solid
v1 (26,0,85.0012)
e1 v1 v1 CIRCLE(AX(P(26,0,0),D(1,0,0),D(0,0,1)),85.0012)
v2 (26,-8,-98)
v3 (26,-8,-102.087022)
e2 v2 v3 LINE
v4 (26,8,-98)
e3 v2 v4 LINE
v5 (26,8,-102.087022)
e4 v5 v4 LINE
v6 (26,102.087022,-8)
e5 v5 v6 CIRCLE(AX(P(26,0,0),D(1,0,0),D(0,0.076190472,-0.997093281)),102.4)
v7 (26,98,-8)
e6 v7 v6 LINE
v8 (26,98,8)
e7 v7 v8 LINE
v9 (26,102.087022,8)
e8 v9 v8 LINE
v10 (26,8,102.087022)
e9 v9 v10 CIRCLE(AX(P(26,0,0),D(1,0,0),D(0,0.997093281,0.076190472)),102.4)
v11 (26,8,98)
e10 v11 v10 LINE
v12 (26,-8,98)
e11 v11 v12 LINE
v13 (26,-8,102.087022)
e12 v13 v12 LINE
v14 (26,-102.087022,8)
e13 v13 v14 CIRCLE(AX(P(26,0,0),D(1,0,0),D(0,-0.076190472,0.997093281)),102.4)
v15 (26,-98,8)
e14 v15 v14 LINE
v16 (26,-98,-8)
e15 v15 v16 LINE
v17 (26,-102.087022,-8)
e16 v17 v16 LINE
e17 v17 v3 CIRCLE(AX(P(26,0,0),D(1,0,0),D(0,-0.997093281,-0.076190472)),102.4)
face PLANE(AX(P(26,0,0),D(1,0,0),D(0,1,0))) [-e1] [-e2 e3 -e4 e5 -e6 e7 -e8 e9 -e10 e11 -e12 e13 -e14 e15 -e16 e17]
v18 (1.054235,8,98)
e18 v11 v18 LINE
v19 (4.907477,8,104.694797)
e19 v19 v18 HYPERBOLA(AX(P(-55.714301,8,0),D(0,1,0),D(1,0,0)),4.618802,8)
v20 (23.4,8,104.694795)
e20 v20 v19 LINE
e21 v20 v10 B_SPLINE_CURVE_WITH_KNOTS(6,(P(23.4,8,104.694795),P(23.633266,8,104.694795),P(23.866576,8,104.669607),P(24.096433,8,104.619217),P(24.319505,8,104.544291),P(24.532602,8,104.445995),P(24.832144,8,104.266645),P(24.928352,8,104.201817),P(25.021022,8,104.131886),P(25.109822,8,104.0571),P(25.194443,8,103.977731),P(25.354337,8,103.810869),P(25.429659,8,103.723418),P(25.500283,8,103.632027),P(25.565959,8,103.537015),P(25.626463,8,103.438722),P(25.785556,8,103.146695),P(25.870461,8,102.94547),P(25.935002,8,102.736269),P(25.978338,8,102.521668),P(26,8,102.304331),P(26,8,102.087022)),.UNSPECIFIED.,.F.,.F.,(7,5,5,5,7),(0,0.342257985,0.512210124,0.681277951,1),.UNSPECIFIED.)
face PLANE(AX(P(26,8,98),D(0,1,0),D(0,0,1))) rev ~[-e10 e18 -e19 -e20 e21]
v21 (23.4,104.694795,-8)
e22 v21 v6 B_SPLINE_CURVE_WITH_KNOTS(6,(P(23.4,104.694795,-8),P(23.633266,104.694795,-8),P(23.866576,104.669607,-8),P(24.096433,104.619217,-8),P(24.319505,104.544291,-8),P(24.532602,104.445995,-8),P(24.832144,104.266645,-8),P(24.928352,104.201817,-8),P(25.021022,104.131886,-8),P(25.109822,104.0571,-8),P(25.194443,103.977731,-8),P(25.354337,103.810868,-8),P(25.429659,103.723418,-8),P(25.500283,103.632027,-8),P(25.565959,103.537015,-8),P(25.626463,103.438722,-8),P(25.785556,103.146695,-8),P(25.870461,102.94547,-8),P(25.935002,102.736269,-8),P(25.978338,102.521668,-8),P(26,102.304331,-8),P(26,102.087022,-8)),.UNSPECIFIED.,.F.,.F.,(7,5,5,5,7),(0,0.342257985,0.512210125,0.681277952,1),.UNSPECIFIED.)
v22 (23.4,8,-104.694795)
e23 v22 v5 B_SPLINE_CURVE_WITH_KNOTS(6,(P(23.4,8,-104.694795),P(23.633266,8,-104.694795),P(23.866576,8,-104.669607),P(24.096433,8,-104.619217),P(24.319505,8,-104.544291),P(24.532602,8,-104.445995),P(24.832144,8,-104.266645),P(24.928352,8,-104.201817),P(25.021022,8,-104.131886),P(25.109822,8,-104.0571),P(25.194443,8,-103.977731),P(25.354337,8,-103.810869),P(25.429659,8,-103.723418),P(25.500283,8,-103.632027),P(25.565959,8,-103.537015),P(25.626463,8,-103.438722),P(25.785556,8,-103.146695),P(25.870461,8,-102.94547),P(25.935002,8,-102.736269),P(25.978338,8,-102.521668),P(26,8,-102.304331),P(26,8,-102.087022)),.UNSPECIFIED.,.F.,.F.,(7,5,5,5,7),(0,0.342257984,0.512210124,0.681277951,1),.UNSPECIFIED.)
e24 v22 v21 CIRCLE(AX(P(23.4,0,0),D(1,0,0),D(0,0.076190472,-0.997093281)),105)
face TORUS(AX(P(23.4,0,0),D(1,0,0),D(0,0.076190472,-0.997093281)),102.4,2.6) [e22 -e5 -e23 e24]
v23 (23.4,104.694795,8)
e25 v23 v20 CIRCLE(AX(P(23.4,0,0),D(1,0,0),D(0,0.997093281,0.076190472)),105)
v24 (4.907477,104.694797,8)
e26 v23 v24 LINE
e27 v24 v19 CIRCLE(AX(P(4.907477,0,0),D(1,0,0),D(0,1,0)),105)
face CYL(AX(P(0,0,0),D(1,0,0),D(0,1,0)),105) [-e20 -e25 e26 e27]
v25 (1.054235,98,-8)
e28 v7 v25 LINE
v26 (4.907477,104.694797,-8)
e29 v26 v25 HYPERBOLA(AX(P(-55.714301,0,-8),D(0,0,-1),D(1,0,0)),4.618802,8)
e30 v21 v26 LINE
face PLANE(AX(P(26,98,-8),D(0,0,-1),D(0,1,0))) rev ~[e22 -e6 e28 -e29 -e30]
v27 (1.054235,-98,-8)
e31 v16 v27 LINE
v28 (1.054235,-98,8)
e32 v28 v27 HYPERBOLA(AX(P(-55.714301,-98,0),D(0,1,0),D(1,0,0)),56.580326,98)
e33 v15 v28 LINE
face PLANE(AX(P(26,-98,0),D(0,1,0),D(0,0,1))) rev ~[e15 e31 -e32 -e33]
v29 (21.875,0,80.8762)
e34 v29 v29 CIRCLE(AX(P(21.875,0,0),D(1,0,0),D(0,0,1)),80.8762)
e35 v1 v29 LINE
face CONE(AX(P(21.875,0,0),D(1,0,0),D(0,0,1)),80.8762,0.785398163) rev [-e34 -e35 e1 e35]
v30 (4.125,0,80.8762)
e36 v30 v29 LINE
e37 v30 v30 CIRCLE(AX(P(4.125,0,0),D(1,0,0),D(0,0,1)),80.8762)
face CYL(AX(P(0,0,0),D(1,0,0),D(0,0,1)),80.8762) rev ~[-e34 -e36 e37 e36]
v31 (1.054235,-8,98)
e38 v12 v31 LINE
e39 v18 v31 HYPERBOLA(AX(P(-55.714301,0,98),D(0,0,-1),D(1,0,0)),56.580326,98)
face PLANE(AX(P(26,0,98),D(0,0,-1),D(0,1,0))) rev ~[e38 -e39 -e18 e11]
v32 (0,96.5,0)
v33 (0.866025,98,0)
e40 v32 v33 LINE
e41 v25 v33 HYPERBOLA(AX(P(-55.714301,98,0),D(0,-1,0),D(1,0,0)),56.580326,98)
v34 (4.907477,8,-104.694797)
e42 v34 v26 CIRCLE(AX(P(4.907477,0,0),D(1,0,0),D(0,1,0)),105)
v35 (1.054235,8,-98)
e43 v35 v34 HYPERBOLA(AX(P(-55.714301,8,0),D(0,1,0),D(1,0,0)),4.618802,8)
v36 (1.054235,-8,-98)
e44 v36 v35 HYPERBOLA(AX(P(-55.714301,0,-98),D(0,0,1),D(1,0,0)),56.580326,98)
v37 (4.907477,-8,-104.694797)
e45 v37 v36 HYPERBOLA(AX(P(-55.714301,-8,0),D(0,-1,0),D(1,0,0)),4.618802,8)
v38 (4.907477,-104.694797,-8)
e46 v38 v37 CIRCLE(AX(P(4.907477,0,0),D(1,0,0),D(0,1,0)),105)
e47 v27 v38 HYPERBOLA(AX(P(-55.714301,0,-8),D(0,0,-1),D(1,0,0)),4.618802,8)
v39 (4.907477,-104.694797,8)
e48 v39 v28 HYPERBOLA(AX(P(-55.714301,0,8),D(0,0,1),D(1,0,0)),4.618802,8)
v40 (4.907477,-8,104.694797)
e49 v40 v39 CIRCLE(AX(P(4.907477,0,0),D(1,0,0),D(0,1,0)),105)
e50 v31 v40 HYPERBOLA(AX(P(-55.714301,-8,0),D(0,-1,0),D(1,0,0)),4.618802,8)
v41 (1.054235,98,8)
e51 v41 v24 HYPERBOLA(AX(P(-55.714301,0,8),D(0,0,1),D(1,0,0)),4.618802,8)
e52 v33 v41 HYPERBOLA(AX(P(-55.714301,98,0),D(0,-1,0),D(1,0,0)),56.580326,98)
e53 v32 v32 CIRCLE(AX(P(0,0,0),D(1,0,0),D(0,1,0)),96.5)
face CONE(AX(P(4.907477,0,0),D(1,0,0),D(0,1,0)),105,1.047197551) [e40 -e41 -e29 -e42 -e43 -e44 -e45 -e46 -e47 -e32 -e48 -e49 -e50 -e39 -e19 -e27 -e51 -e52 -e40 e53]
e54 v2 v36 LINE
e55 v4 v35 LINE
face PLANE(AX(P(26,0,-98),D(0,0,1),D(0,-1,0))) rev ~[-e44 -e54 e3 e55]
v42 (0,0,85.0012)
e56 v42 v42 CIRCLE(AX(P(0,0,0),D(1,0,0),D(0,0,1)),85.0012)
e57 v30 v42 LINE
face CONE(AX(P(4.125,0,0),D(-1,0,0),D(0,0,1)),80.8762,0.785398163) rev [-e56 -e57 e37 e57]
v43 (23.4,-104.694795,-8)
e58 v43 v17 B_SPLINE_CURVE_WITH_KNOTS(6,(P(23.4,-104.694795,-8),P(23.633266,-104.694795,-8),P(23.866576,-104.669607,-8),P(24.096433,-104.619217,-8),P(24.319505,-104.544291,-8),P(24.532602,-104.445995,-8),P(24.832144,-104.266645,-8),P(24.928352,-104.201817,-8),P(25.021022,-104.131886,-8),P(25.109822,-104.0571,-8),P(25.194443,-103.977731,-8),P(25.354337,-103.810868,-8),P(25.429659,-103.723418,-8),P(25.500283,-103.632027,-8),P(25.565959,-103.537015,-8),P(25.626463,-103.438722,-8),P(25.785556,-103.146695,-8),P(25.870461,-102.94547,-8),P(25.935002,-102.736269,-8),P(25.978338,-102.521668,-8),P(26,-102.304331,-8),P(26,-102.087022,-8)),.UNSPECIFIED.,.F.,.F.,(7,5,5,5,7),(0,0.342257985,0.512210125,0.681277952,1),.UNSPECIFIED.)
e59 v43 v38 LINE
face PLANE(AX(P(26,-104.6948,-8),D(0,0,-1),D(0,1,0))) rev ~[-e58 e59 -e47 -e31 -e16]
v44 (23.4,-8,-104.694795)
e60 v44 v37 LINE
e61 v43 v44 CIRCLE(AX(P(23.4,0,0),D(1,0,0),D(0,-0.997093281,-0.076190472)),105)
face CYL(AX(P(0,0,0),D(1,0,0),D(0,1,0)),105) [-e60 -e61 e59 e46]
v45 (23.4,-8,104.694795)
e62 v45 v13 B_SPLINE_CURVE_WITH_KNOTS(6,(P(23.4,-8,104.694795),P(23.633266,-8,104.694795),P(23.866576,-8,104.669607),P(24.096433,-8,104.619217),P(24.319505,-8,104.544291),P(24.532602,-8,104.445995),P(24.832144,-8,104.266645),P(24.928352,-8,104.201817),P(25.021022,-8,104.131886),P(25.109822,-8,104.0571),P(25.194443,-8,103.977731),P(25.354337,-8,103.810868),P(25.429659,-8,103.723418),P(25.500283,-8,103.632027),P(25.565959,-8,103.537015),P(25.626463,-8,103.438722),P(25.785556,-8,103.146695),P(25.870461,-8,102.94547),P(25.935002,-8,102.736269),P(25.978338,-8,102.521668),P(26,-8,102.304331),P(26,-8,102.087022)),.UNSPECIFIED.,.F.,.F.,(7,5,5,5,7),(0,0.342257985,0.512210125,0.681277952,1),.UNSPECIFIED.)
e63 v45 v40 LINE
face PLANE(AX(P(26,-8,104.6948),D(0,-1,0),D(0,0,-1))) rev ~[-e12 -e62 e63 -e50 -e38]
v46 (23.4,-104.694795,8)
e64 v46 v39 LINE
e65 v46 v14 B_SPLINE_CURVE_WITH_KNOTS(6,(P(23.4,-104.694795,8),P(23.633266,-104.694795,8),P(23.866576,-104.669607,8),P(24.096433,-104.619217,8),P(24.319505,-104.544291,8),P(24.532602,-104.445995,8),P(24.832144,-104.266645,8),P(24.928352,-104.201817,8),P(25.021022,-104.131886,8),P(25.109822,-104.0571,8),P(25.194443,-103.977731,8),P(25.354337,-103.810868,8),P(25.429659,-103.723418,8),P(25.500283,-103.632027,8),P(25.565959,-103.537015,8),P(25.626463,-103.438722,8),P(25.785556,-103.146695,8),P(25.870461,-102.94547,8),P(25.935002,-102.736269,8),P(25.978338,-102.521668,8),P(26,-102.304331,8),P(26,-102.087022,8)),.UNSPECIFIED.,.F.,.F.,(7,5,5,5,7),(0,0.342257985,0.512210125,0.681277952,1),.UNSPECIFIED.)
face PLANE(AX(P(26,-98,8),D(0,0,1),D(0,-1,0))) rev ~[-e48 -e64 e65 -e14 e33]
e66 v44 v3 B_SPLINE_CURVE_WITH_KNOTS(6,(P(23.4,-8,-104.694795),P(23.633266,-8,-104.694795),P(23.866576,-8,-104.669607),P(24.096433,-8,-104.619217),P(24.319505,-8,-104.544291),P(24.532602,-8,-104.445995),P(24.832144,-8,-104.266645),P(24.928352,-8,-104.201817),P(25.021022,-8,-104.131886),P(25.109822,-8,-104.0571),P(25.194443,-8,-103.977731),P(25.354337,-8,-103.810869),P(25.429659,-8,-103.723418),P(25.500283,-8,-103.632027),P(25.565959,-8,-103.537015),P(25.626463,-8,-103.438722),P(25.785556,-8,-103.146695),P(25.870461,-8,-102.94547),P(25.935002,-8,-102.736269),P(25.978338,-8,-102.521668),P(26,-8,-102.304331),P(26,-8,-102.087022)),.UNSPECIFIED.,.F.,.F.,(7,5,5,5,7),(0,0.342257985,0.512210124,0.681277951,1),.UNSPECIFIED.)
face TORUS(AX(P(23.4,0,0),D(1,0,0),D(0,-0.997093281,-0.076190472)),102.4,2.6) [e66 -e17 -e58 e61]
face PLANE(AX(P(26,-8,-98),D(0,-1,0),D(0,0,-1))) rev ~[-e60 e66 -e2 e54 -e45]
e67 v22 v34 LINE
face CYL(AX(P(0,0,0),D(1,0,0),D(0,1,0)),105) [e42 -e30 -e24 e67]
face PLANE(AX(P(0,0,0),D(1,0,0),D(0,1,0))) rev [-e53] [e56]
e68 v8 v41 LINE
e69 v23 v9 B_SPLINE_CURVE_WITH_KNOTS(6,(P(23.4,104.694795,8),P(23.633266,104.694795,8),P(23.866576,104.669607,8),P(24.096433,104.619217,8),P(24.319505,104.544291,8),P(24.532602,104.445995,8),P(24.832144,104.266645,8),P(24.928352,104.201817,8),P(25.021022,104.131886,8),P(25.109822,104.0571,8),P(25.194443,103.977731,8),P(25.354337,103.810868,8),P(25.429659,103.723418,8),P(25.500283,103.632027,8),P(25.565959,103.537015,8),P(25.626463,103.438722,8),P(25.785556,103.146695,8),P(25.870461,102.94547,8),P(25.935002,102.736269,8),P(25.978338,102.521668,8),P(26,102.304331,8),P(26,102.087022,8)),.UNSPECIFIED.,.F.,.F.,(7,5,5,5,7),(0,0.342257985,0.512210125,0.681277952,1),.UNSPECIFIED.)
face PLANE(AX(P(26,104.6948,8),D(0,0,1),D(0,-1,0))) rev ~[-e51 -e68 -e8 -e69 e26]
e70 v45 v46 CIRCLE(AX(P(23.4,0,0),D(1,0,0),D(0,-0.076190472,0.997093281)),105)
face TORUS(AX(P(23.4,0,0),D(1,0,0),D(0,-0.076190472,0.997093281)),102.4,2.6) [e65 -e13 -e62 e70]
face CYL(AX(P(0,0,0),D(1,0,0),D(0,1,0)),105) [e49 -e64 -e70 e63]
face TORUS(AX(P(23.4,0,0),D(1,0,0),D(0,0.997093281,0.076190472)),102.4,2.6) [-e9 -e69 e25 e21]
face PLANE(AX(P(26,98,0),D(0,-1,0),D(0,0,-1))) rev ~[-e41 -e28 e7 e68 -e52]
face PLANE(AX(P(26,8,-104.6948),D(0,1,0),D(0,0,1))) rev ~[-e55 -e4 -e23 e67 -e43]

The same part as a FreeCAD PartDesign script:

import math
import FreeCAD as App
import Part
import Sketcher

V = App.Vector
Q = App.Units.Quantity


def edges_at(feature, points):
    """Names of the edges that pass closest to the given points."""
    edges = feature.Shape.Edges
    near = lambda p: min(range(len(edges)), key=lambda i: edges[i].distToShape(Part.Vertex(*p))[0])
    return sorted({f"Edge{near(p) + 1}" for p in points})

doc = App.newDocument("Part")
body = doc.addObject("PartDesign::Body", "Body")

sketch1 = doc.addObject("Sketcher::SketchObject", "Sketch")
body.addObject(sketch1)
sketch1.AttachmentSupport = (doc.XY_Plane, [""])
sketch1.MapMode = "FlatFace"
sketch1.addGeometry([
    Part.LineSegment(V(0, 105, 0), V(0, 0, 0)),
    Part.LineSegment(V(0, 0, 0), V(26, 0, 0)),
    Part.LineSegment(V(26, 0, 0), V(26, 105, 0)),
    Part.LineSegment(V(26, 105, 0), V(0, 105, 0)),
], False)
sketch1.addConstraint([
    Sketcher.Constraint("Coincident", 0, 2, 1, 1),
    Sketcher.Constraint("Coincident", 1, 2, 2, 1),
    Sketcher.Constraint("Coincident", 2, 2, 3, 1),
    Sketcher.Constraint("Coincident", 3, 2, 0, 1),
    Sketcher.Constraint("Vertical", 0),
    Sketcher.Constraint("Horizontal", 1),
    Sketcher.Constraint("Vertical", 2),
    Sketcher.Constraint("Horizontal", 3),
    Sketcher.Constraint("Coincident", 0, 2, -1, 1),
    Sketcher.Constraint("DistanceX", 1, 1, 1, 2, Q("26 mm")),
    Sketcher.Constraint("DistanceY", 0, 2, 0, 1, Q("105 mm")),
])
revolution = doc.addObject("PartDesign::Revolution", "Revolution")
body.addObject(revolution)
revolution.Profile = sketch1
revolution.ReferenceAxis = (sketch1, ["H_Axis"])
revolution.Angle = 360

sketch2 = doc.addObject("Sketcher::SketchObject", "Sketch001")
body.addObject(sketch2)
sketch2.AttachmentSupport = (doc.YZ_Plane, [""])
sketch2.MapMode = "FlatFace"
sketch2.addGeometry(Part.Circle(V(0, 0, 0), V(0, 0, 1), 81), False)
sketch2.addConstraint([
    Sketcher.Constraint("Coincident", 0, 3, -1, 1),
    Sketcher.Constraint("Diameter", 0, Q("161.7524 mm")),
])
doc.recompute()
hole = doc.addObject("PartDesign::Hole", "Hole")
body.addObject(hole)
hole.Profile = sketch2
hole.ThreadType = "None"
hole.Diameter = 161.7524
hole.DepthType = "ThroughAll"
hole.Reversed = True
doc.recompute()

chamfer = doc.addObject("PartDesign::Chamfer", "Chamfer")
body.addObject(chamfer)
chamfer.Base = (hole, edges_at(hole, [(0, -105, 0)]))
chamfer.ChamferType = "Distance and Angle"
chamfer.Size = 8.5
chamfer.Angle = 30

sketch3 = doc.addObject("Sketcher::SketchObject", "Sketch002")
body.addObject(sketch3)
sketch3.AttachmentSupport = (doc.YZ_Plane, [""])
sketch3.MapMode = "FlatFace"
sketch3.AttachmentOffset = App.Placement(V(0, 0, 26), App.Rotation())
sketch3.addGeometry([
    Part.LineSegment(V(98, -8, 0), V(105, -8, 0)),
    Part.ArcOfCircle(Part.Circle(V(0, 0, 0), V(0, 0, 1), 105), math.radians(-4.37), math.radians(4.37)),
    Part.LineSegment(V(105, 8, 0), V(98, 8, 0)),
    Part.LineSegment(V(98, 8, 0), V(98, -8, 0)),
], False)
sketch3.addConstraint([
    Sketcher.Constraint("Coincident", 0, 2, 1, 1),
    Sketcher.Constraint("Coincident", 1, 2, 2, 1),
    Sketcher.Constraint("Coincident", 2, 2, 3, 1),
    Sketcher.Constraint("Coincident", 3, 2, 0, 1),
    Sketcher.Constraint("Horizontal", 0),
    Sketcher.Constraint("Horizontal", 2),
    Sketcher.Constraint("Vertical", 3),
    Sketcher.Constraint("Coincident", 1, 3, -1, 1),
    Sketcher.Constraint("Vertical", 0, 2, 1, 2),
    Sketcher.Constraint("DistanceY", 0, 2, -1, 1, Q("8 mm")),
    Sketcher.Constraint("DistanceX", -1, 1, 2, 2, Q("98 mm")),
    Sketcher.Constraint("Radius", 1, Q("105 mm")),
])
pocket1 = doc.addObject("PartDesign::Pocket", "Pocket")
body.addObject(pocket1)
pocket1.Profile = sketch3
pocket1.Type = "ThroughAll"
doc.recompute()

polarpattern = doc.addObject("PartDesign::PolarPattern", "PolarPattern")
body.addObject(polarpattern)
polarpattern.Originals = [pocket1]
polarpattern.Axis = (doc.X_Axis, [""])
polarpattern.Angle = 360
polarpattern.Occurrences = 4
body.Tip = polarpattern
doc.recompute()

fillet = doc.addObject("PartDesign::Fillet", "Fillet")
body.addObject(fillet)
fillet.Base = (polarpattern, edges_at(polarpattern, [
    (26, 74.246, 74.246),
    (26, 74.246, -74.246),
    (26, -74.246, -74.246),
    (26, -74.246, 74.246),
]))
fillet.Radius = 2.6
doc.recompute()

chamfer2 = doc.addObject("PartDesign::Chamfer", "Chamfer001")
body.addObject(chamfer2)
chamfer2.Base = (fillet, edges_at(fillet, [(26, 0, -80.876)]))
chamfer2.Size = 4.125
doc.recompute()

chamfer3 = doc.addObject("PartDesign::Chamfer", "Chamfer002")
body.addObject(chamfer3)
chamfer3.Base = (chamfer2, edges_at(chamfer2, [(0, 0, -80.876)]))
chamfer3.Size = 4.125

doc.recompute()
